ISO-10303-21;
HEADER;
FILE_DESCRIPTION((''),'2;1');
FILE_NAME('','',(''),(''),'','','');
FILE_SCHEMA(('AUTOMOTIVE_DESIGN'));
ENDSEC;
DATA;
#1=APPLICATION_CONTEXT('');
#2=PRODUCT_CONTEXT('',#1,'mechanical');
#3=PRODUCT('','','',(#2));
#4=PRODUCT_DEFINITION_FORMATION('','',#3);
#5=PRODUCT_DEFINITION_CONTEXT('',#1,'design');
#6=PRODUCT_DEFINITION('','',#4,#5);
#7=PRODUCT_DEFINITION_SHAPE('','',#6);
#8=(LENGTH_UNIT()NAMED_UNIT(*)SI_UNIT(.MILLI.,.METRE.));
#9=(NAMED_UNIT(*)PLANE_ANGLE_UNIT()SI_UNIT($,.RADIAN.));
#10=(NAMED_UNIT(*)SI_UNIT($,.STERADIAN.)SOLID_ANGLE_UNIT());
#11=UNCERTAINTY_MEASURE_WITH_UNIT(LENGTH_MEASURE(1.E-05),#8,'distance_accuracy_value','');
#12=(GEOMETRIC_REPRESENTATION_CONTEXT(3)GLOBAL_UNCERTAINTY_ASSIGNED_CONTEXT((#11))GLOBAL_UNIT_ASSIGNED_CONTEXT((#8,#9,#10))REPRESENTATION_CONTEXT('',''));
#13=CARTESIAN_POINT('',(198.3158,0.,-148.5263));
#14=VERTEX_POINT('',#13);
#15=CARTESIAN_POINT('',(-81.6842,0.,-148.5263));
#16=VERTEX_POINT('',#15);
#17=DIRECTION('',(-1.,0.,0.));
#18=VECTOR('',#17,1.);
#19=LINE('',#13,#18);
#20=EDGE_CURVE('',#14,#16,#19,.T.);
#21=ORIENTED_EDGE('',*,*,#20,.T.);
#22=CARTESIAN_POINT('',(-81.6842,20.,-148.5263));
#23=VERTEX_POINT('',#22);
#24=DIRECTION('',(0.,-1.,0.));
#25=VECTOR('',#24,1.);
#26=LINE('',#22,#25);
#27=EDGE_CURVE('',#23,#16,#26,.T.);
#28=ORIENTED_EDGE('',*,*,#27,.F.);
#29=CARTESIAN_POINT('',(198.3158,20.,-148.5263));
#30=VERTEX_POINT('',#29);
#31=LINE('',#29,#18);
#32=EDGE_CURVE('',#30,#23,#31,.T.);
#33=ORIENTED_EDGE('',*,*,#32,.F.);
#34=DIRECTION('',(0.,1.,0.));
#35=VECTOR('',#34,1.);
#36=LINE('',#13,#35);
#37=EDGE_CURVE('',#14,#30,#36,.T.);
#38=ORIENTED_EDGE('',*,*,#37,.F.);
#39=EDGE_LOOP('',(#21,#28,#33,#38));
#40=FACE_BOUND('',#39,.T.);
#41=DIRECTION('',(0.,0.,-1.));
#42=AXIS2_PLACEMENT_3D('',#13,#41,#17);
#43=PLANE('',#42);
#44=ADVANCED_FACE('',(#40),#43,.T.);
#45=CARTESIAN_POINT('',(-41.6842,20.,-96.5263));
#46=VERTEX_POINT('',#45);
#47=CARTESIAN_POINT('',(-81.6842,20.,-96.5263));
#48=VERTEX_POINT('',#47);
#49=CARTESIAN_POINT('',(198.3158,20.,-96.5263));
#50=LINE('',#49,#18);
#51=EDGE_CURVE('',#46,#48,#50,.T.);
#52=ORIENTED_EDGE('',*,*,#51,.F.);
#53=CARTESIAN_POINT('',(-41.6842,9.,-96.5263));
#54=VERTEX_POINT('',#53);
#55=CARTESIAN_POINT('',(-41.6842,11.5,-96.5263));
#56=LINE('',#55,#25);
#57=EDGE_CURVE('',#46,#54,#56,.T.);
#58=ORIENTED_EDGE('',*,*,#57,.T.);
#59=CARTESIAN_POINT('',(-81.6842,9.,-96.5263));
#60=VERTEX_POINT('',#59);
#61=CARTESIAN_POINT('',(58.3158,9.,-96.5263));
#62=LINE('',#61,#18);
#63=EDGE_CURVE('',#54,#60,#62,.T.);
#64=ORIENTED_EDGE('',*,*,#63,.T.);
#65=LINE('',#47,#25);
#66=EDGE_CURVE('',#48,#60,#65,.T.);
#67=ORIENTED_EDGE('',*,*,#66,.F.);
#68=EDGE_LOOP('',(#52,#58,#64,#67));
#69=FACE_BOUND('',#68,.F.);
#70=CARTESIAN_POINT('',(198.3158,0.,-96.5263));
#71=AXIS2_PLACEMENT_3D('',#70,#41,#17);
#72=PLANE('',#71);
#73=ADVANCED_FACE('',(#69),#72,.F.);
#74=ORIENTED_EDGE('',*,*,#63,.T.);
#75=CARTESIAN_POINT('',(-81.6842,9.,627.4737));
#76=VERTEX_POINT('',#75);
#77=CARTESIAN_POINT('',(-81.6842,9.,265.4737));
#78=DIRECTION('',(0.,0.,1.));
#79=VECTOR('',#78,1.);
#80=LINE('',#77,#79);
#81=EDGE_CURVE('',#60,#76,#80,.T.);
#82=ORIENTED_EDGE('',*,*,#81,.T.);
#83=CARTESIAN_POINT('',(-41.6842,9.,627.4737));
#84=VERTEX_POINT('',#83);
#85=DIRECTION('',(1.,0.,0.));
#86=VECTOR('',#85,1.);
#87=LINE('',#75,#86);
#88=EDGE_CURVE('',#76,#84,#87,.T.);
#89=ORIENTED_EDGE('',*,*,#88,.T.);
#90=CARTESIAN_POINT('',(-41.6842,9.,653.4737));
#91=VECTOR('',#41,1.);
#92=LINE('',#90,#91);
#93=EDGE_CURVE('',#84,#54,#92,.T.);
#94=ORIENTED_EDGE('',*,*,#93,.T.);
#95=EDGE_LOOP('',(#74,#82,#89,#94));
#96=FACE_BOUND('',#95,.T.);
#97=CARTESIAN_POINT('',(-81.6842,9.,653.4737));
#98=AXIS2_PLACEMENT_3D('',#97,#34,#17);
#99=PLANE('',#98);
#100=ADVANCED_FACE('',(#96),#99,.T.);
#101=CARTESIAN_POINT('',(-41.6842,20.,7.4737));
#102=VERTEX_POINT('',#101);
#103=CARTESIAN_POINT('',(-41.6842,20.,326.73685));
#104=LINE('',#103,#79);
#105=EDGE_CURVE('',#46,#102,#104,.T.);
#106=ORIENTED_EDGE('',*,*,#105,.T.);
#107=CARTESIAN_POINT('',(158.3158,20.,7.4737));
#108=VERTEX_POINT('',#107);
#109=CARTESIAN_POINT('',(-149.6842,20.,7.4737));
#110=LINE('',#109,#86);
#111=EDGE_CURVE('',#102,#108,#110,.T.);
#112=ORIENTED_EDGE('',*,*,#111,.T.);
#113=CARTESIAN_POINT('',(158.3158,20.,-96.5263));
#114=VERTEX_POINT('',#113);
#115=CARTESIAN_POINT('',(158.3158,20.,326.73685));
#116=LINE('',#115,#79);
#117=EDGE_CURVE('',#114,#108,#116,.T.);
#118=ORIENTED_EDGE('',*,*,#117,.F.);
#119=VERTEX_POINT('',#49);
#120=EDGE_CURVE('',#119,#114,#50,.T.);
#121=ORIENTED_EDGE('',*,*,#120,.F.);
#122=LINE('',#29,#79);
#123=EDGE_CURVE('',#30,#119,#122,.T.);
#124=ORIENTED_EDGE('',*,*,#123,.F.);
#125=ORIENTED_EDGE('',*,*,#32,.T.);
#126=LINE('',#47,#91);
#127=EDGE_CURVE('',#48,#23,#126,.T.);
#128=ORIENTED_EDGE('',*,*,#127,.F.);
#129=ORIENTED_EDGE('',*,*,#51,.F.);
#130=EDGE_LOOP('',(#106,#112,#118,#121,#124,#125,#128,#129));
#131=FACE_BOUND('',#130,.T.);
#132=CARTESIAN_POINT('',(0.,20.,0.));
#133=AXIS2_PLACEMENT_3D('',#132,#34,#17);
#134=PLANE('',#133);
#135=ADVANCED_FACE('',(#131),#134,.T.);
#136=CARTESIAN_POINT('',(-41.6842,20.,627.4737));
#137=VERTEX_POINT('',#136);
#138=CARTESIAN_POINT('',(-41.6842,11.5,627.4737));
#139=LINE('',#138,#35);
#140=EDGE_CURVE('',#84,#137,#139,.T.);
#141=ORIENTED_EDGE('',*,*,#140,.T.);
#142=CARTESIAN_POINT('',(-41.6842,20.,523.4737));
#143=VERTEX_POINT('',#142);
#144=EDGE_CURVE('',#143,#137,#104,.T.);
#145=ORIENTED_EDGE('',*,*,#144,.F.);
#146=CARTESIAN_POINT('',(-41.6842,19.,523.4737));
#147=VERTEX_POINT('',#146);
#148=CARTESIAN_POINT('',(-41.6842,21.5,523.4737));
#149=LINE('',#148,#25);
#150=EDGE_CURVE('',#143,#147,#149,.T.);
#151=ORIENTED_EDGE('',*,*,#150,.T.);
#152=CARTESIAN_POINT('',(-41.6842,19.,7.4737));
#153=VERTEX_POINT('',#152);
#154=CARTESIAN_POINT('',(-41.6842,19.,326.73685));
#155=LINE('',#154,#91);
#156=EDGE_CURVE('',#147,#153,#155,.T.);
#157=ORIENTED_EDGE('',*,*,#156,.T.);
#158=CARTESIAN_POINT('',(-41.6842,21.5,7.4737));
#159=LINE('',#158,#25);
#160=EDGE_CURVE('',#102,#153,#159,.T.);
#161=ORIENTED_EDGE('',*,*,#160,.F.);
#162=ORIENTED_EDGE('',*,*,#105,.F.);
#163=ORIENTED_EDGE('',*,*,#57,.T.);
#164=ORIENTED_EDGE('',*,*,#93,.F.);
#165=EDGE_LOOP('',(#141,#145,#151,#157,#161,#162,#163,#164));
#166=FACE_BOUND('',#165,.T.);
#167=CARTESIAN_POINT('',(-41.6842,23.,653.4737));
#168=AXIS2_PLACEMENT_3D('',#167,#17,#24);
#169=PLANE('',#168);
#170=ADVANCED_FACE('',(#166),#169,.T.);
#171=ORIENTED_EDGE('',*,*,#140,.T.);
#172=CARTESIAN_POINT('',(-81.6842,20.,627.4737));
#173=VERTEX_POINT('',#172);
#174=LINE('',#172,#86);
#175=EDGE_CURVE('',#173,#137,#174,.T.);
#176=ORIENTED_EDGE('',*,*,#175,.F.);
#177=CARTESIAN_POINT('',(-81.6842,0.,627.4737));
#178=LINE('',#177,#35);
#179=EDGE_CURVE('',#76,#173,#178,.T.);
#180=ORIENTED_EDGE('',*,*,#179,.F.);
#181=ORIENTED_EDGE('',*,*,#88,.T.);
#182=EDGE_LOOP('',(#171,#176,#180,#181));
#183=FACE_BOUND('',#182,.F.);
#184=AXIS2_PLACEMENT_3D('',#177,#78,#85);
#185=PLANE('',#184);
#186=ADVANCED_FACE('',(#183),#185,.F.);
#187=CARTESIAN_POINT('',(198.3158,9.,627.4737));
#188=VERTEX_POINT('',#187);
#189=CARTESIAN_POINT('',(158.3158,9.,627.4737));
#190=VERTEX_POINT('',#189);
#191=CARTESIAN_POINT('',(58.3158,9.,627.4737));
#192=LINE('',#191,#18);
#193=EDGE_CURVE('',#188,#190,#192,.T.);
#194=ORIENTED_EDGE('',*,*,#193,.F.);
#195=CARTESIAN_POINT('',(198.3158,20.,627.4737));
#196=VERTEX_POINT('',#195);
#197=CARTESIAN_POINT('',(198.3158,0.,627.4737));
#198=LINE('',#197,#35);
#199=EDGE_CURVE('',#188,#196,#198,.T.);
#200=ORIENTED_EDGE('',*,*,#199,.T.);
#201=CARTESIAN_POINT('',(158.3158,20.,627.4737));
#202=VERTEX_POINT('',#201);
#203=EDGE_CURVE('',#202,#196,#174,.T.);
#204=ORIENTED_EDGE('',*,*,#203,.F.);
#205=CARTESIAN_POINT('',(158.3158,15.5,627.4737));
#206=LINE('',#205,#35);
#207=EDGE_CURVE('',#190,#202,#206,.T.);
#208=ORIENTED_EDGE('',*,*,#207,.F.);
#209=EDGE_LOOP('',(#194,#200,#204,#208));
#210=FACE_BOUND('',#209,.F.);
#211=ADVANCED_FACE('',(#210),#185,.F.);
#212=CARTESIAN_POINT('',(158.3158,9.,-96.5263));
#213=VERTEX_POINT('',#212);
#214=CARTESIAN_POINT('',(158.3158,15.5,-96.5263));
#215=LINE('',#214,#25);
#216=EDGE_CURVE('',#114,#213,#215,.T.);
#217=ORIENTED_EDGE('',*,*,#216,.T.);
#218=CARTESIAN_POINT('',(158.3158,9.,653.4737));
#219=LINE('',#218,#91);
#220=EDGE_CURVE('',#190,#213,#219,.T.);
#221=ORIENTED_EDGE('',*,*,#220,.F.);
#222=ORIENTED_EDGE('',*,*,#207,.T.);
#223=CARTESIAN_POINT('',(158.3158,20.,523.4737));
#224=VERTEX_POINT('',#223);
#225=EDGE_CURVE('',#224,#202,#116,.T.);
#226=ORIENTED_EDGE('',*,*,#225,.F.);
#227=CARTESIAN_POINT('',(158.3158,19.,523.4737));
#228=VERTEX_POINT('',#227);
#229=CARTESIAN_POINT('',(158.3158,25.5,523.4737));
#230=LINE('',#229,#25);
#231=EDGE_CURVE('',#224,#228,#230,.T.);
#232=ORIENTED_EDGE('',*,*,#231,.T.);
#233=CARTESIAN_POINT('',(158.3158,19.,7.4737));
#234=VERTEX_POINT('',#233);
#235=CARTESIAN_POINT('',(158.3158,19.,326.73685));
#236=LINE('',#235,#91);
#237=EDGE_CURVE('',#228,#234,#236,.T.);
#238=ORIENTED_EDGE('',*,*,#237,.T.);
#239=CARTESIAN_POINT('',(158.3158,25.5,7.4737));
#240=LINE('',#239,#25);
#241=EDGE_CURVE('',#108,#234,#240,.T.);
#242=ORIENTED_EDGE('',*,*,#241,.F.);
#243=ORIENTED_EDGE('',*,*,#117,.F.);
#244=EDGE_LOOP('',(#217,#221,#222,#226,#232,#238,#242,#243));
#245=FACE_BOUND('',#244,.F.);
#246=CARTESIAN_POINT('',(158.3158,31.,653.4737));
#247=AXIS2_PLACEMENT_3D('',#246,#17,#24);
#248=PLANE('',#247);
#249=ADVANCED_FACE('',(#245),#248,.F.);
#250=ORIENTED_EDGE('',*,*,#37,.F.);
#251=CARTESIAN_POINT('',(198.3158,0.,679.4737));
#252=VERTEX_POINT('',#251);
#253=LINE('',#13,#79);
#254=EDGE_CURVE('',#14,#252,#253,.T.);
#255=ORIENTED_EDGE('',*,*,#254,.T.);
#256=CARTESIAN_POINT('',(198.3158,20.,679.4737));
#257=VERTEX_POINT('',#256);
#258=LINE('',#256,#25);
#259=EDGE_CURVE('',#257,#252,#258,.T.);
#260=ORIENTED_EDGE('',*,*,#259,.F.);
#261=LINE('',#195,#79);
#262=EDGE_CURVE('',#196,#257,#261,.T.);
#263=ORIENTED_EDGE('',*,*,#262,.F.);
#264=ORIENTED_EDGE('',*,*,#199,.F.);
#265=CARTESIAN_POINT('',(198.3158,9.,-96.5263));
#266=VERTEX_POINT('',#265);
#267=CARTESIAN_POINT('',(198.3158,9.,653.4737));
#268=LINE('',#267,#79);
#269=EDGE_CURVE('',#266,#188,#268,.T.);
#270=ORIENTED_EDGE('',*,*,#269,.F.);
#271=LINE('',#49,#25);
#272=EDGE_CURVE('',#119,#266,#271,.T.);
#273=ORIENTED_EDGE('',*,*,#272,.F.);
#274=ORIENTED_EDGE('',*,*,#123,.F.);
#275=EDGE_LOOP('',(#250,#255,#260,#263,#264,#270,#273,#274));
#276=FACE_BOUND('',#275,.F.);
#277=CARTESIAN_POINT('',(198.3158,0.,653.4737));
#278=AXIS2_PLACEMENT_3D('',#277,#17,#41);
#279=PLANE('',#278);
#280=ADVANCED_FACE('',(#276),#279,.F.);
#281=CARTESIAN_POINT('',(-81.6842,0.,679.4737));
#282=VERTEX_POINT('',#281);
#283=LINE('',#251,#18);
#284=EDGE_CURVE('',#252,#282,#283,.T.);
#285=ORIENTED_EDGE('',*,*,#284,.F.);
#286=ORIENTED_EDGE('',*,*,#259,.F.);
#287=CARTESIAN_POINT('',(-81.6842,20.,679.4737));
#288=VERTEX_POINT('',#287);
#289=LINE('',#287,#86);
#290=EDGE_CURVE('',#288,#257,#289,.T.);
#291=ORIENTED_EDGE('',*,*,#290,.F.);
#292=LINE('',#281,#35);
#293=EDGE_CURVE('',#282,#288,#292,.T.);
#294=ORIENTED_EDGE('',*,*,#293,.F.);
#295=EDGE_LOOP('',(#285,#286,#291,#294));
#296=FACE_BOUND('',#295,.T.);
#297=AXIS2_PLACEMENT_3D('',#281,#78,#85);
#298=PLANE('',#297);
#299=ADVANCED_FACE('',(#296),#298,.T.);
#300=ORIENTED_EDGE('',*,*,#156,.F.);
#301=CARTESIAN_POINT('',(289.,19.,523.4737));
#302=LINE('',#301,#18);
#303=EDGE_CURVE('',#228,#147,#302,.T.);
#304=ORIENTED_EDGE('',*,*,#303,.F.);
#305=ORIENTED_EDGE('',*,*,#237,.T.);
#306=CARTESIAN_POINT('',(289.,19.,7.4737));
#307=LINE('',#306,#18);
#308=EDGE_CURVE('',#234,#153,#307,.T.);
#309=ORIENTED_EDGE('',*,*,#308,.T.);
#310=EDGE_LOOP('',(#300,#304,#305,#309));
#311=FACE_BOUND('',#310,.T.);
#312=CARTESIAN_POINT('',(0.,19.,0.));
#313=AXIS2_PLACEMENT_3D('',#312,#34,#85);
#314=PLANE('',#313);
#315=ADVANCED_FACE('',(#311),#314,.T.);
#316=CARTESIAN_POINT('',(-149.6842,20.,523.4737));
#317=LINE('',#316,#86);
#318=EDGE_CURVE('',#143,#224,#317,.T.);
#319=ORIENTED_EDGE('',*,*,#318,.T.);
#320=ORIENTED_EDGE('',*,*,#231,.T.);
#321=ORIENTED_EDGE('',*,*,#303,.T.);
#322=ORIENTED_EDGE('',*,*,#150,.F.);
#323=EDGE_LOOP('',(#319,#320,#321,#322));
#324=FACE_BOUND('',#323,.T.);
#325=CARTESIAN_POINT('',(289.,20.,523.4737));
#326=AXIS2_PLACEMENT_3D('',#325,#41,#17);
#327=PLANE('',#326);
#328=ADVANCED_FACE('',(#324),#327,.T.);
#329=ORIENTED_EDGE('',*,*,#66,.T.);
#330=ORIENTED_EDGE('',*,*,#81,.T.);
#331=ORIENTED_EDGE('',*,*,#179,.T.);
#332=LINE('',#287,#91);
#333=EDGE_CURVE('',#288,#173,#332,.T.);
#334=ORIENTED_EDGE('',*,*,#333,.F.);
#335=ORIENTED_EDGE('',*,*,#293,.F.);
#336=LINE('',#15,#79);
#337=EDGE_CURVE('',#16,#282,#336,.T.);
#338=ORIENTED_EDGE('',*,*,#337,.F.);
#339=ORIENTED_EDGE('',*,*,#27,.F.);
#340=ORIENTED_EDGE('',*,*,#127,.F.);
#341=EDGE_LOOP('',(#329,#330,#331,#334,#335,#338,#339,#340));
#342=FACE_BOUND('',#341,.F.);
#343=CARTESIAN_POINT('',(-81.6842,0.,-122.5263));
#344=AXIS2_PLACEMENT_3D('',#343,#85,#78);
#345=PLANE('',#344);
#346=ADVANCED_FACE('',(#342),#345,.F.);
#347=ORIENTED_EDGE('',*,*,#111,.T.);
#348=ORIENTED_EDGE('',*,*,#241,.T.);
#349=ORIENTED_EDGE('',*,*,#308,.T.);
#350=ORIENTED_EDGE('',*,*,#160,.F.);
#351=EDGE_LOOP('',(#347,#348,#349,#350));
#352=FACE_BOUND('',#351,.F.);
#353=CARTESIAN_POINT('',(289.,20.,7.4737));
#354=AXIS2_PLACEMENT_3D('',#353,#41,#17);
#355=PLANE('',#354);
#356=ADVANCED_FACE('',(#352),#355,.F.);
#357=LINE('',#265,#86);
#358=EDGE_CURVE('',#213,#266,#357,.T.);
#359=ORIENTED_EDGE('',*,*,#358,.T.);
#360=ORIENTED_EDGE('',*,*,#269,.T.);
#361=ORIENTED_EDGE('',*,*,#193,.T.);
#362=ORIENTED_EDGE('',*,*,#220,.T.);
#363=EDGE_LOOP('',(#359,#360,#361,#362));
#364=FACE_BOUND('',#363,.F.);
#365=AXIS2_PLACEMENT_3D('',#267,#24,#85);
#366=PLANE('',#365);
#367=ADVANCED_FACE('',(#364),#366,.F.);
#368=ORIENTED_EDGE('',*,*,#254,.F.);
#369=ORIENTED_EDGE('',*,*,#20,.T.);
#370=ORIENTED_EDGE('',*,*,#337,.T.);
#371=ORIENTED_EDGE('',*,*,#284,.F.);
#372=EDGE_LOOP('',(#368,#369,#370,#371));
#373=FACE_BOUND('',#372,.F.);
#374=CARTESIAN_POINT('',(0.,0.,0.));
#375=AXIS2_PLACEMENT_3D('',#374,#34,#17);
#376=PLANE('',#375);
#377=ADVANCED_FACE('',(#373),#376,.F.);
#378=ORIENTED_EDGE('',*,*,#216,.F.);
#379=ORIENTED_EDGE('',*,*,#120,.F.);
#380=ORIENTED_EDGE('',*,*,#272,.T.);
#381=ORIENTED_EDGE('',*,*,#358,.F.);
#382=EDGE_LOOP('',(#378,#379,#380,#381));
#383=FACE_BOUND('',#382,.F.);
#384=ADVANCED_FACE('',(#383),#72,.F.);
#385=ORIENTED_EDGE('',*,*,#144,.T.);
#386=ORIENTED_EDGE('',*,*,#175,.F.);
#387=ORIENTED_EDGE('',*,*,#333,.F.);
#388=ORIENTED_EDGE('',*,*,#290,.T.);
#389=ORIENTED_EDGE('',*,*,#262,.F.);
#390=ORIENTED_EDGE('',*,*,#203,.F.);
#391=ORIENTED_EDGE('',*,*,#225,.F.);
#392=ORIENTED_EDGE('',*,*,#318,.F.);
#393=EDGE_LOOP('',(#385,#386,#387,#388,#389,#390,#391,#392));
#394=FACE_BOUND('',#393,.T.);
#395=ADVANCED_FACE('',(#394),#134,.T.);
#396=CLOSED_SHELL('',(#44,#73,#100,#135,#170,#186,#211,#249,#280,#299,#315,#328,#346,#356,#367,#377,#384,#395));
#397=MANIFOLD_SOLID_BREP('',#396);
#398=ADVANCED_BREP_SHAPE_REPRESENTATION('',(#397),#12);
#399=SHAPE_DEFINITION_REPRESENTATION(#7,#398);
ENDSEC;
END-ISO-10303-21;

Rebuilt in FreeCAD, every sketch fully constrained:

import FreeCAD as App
import Part
import Sketcher
from FreeCAD import Vector
Q = App.Units.Quantity


def add_polygon(sketch, points):
    """Adds a closed chain of lines whose ends are joined by coincident constraints."""
    first, n = sketch.GeometryCount, len(points)
    for a, b in zip(points, points[1:] + points[:1]):
        sketch.addGeometry(Part.LineSegment(App.Vector(*a, 0), App.Vector(*b, 0)), False)
    for i in range(n):
        sketch.addConstraint(Sketcher.Constraint("Coincident", first + i, 2, first + (i + 1) % n, 1))

doc = App.newDocument("Part")
body = doc.addObject("PartDesign::Body", "Body")

# Sketch on XZ plane
sketch1 = body.newObject("Sketcher::SketchObject", "Sketch")
sketch1.AttachmentSupport = (doc.getObject("XZ_Plane"), [""])
sketch1.MapMode = "FlatFace"
add_polygon(sketch1, [(-82, -123), (-82, 653), (198, 653), (198, -123)])  # lines 0-3
sketch1.addConstraint([
    Sketcher.Constraint("Vertical", 0),
    Sketcher.Constraint("Horizontal", 1),
    Sketcher.Constraint("Vertical", 2),
    Sketcher.Constraint("Horizontal", 3),
    Sketcher.Constraint("DistanceX", 1, 1, 1, 2, Q("280 mm")),
    Sketcher.Constraint("DistanceY", 0, 1, 0, 2, Q("776 mm")),
    Sketcher.Constraint("DistanceX", 0, 2, -1, 1, Q("81.6842 mm")),
    Sketcher.Constraint("DistanceY", -1, 1, 0, 2, Q("653.4737 mm")),
])
pad1 = body.newObject("PartDesign::Pad", "Pad")
pad1.Profile = sketch1
pad1.Length = 20
pad1.Reversed = True

# Sketch on XY plane
sketch2 = body.newObject("Sketcher::SketchObject", "Sketch001")
sketch2.AttachmentSupport = (doc.getObject("XY_Plane"), [""])
sketch2.MapMode = "FlatFace"
sketch2.AttachmentOffset = App.Placement(Vector(0, 0, 653.4737), App.Rotation())
add_polygon(sketch2, [(210, 9), (210, 31), (158, 31), (158, 9)])  # lines 0-3
add_polygon(sketch2, [(-83, 9), (-42, 9), (-42, 23), (-83, 23)])  # lines 4-7
sketch2.addConstraint([
    Sketcher.Constraint("Vertical", 0),
    Sketcher.Constraint("Horizontal", 1),
    Sketcher.Constraint("Vertical", 2),
    Sketcher.Constraint("Horizontal", 3),
    Sketcher.Constraint("Horizontal", 4),
    Sketcher.Constraint("Vertical", 5),
    Sketcher.Constraint("Horizontal", 6),
    Sketcher.Constraint("Vertical", 7),
    Sketcher.Constraint("Horizontal", 3, 2, 4, 2),
    Sketcher.Constraint("DistanceY", -1, 1, 2, 2, Q("9 mm")),
    Sketcher.Constraint("DistanceX", 1, 2, 1, 1, Q("52 mm")),
    Sketcher.Constraint("DistanceX", 4, 1, 4, 2, Q("41 mm")),
    Sketcher.Constraint("DistanceY", 0, 1, 0, 2, Q("22 mm")),
    Sketcher.Constraint("DistanceY", 5, 1, 5, 2, Q("14 mm")),
    Sketcher.Constraint("DistanceX", 4, 2, 2, 2, Q("200 mm")),
    Sketcher.Constraint("DistanceX", -1, 1, 0, 2, Q("210.3158 mm")),
])
pocket1 = body.newObject("PartDesign::Pocket", "Pocket")
pocket1.Profile = sketch2
pocket1.Length = 999

# Sketch on XY plane
sketch3 = body.newObject("Sketcher::SketchObject", "Sketch002")
sketch3.AttachmentSupport = (doc.getObject("XY_Plane"), [""])
sketch3.MapMode = "FlatFace"
sketch3.AttachmentOffset = App.Placement(Vector(0, 0, 653.4737), App.Rotation())
add_polygon(sketch3, [(-82, 0), (198, 0), (198, 20), (-82, 20)])  # lines 0-3
sketch3.addConstraint([
    Sketcher.Constraint("Horizontal", 0),
    Sketcher.Constraint("Vertical", 1),
    Sketcher.Constraint("Horizontal", 2),
    Sketcher.Constraint("Vertical", 3),
    Sketcher.Constraint("PointOnObject", 0, 2, -1),
    Sketcher.Constraint("DistanceY", 1, 1, 1, 2, Q("20 mm")),
    Sketcher.Constraint("DistanceX", 0, 1, 0, 2, Q("280 mm")),
    Sketcher.Constraint("DistanceX", -1, 1, 0, 2, Q("198.3158 mm")),
])
pad2 = body.newObject("PartDesign::Pad", "Pad001")
pad2.Profile = sketch3
pad2.Length = 52
pad2.Midplane = True

# Sketch on XY plane
sketch4 = body.newObject("Sketcher::SketchObject", "Sketch003")
sketch4.AttachmentSupport = (doc.getObject("XY_Plane"), [""])
sketch4.MapMode = "FlatFace"
sketch4.AttachmentOffset = App.Placement(Vector(0, 0, -122.5263), App.Rotation())
add_polygon(sketch4, [(198, 20), (198, 0), (-82, 0), (-82, 20)])  # lines 0-3
sketch4.addConstraint([
    Sketcher.Constraint("Vertical", 0),
    Sketcher.Constraint("Horizontal", 1),
    Sketcher.Constraint("Vertical", 2),
    Sketcher.Constraint("Horizontal", 3),
    Sketcher.Constraint("PointOnObject", 0, 2, -1),
    Sketcher.Constraint("DistanceX", 1, 2, 1, 1, Q("280 mm")),
    Sketcher.Constraint("DistanceY", 0, 2, 0, 1, Q("20 mm")),
    Sketcher.Constraint("DistanceX", -1, 1, 0, 2, Q("198.3158 mm")),
])
pad3 = body.newObject("PartDesign::Pad", "Pad002")
pad3.Profile = sketch4
pad3.Length = 52
pad3.Midplane = True

# Sketch on XZ plane
sketch5 = body.newObject("Sketcher::SketchObject", "Sketch004")
sketch5.AttachmentSupport = (doc.getObject("XZ_Plane"), [""])
sketch5.MapMode = "FlatFace"
sketch5.AttachmentOffset = App.Placement(Vector(0, 0, -20), App.Rotation())
add_polygon(sketch5, [(289, 7), (-150, 7), (-150, 523), (289, 523)])  # lines 0-3
sketch5.addConstraint([
    Sketcher.Constraint("Horizontal", 0),
    Sketcher.Constraint("Vertical", 1),
    Sketcher.Constraint("Horizontal", 2),
    Sketcher.Constraint("Vertical", 3),
    Sketcher.Constraint("DistanceY", 1, 1, 1, 2, Q("516 mm")),
    Sketcher.Constraint("DistanceX", -1, 1, 2, 2, Q("289 mm")),
    Sketcher.Constraint("DistanceX", 0, 2, 0, 1, Q("438.6842 mm")),
    Sketcher.Constraint("DistanceY", -1, 1, 0, 2, Q("7.4737 mm")),
])
pocket2 = body.newObject("PartDesign::Pocket", "Pocket001")
pocket2.Profile = sketch5
pocket2.Length = 1
pocket2.Reversed = True

doc.recompute()
